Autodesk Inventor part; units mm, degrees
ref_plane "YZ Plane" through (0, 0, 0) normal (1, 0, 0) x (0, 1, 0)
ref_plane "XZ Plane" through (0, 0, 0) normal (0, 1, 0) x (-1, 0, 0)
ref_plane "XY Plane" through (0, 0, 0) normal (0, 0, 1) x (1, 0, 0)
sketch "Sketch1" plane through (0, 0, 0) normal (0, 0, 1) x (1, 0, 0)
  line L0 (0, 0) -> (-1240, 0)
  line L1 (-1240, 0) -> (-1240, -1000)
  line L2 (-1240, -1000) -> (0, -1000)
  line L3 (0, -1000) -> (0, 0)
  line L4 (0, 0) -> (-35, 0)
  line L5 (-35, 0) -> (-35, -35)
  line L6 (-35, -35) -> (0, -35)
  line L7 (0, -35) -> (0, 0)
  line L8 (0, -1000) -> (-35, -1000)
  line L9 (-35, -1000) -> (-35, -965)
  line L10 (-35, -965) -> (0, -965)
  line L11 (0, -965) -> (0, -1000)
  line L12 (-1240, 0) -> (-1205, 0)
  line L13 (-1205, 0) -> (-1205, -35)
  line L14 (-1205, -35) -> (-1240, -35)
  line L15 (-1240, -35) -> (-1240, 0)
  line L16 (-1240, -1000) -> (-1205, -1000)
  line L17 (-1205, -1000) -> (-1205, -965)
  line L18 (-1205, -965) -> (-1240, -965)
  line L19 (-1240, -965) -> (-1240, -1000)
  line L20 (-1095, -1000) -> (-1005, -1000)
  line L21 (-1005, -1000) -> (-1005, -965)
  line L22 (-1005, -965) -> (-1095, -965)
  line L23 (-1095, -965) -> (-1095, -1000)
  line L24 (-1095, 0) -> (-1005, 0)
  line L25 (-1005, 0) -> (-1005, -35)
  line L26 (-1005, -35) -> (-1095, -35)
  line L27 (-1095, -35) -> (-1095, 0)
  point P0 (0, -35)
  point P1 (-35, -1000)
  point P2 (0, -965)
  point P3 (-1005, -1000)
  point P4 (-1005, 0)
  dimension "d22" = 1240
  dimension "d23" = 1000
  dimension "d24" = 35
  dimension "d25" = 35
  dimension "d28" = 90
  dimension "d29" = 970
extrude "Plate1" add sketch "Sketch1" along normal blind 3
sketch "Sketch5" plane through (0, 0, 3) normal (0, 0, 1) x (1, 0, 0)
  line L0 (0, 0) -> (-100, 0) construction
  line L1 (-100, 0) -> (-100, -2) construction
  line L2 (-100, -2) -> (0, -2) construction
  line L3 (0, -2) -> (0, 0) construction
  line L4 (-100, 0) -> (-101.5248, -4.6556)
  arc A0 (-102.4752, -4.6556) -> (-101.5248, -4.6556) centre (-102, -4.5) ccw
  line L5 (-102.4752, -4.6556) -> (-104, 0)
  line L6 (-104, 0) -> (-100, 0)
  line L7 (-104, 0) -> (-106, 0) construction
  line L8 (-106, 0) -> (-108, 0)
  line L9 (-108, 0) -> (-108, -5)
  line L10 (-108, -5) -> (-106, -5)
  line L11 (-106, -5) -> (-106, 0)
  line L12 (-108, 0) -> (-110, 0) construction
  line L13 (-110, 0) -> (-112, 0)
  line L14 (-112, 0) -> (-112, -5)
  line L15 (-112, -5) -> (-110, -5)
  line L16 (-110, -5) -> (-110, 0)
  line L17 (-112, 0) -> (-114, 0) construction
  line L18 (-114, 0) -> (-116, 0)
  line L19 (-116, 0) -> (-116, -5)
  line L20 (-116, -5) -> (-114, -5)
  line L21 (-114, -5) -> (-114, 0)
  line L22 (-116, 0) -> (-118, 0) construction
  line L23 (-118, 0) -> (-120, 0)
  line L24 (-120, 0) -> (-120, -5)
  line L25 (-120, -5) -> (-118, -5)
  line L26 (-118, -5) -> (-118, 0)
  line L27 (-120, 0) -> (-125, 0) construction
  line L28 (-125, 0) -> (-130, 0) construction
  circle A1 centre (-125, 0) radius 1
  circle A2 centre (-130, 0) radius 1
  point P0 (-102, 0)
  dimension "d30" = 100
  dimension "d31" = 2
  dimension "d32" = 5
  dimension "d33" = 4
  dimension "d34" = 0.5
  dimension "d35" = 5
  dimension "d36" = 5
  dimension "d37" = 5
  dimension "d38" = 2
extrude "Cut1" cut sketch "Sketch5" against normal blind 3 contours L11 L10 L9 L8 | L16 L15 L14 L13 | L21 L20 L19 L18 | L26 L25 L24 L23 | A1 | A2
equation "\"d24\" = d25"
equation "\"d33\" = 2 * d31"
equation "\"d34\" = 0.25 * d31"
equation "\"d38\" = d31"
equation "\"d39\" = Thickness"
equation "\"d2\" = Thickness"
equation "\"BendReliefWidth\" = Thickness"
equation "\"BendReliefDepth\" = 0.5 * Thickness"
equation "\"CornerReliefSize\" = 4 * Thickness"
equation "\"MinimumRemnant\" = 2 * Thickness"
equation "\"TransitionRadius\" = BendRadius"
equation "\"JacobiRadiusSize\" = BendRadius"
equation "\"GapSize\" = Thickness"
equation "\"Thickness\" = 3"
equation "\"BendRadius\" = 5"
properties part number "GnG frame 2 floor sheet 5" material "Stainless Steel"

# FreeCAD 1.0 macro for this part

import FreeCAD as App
import Part
import Sketcher
from FreeCAD import Vector
Q = App.Units.Quantity

doc = App.newDocument("Part")
body = doc.addObject("PartDesign::Body", "Body")

# Sketch on XY plane
sketch1 = body.newObject("Sketcher::SketchObject", "Sketch")
sketch1.AttachmentSupport = (doc.getObject("XY_Plane"), [""])
sketch1.MapMode = "FlatFace"
sketch1.addGeometry([
    Part.LineSegment(Vector(0, 0, 0), Vector(-1240, 0, 0)),
    Part.LineSegment(Vector(-1240, 0, 0), Vector(-1240, -1000, 0)),
    Part.LineSegment(Vector(-1240, -1000, 0), Vector(0, -1000, 0)),
    Part.LineSegment(Vector(0, -1000, 0), Vector(0, 0, 0)),
], False)
sketch1.addConstraint([
    Sketcher.Constraint("Coincident", 0, 2, 1, 1),
    Sketcher.Constraint("Coincident", 1, 2, 2, 1),
    Sketcher.Constraint("Coincident", 2, 2, 3, 1),
    Sketcher.Constraint("Coincident", 3, 2, 0, 1),
    Sketcher.Constraint("Horizontal", 0),
    Sketcher.Constraint("Vertical", 1),
    Sketcher.Constraint("Horizontal", 2),
    Sketcher.Constraint("Vertical", 3),
    Sketcher.Constraint("Coincident", 3, 2, -1, 1),
    Sketcher.Constraint("DistanceX", 0, 2, 0, 1, Q("1240 mm")),
    Sketcher.Constraint("DistanceY", 1, 2, 1, 1, Q("1000 mm")),
])
pad1 = body.newObject("PartDesign::Pad", "Pad")
pad1.Profile = sketch1
pad1.Length = 3

# Sketch on XY plane
sketch2 = body.newObject("Sketcher::SketchObject", "Sketch001")
sketch2.AttachmentSupport = (doc.getObject("XY_Plane"), [""])
sketch2.MapMode = "FlatFace"
sketch2.AttachmentOffset = App.Placement(Vector(0, 0, 3), App.Rotation())
sketch2.addGeometry([
    Part.LineSegment(Vector(-106, -5, 0), Vector(-106, 0, 0)),  # 0
    Part.LineSegment(Vector(-106, 0, 0), Vector(-108, 0, 0)),  # 1
    Part.LineSegment(Vector(-108, 0, 0), Vector(-108, -5, 0)),  # 2
    Part.LineSegment(Vector(-108, -5, 0), Vector(-106, -5, 0)),  # 3
    Part.LineSegment(Vector(-110, -5, 0), Vector(-110, 0, 0)),  # 4
    Part.LineSegment(Vector(-110, 0, 0), Vector(-112, 0, 0)),  # 5
    Part.LineSegment(Vector(-112, 0, 0), Vector(-112, -5, 0)),  # 6
    Part.LineSegment(Vector(-112, -5, 0), Vector(-110, -5, 0)),  # 7
    Part.LineSegment(Vector(-114, -5, 0), Vector(-114, 0, 0)),  # 8
    Part.LineSegment(Vector(-114, 0, 0), Vector(-116, 0, 0)),  # 9
    Part.LineSegment(Vector(-116, 0, 0), Vector(-116, -5, 0)),  # 10
    Part.LineSegment(Vector(-116, -5, 0), Vector(-114, -5, 0)),  # 11
    Part.LineSegment(Vector(-118, -5, 0), Vector(-118, 0, 0)),  # 12
    Part.LineSegment(Vector(-118, 0, 0), Vector(-120, 0, 0)),  # 13
    Part.LineSegment(Vector(-120, 0, 0), Vector(-120, -5, 0)),  # 14
    Part.LineSegment(Vector(-120, -5, 0), Vector(-118, -5, 0)),  # 15
    Part.Circle(Vector(-125, 0, 0), Vector(0, 0, 1), 1),  # 16
    Part.Circle(Vector(-130, 0, 0), Vector(0, 0, 1), 1),  # 17
], False)
sketch2.addConstraint([
    Sketcher.Constraint("Coincident", 0, 2, 1, 1),
    Sketcher.Constraint("Coincident", 1, 2, 2, 1),
    Sketcher.Constraint("Coincident", 2, 2, 3, 1),
    Sketcher.Constraint("Coincident", 3, 2, 0, 1),
    Sketcher.Constraint("Coincident", 4, 2, 5, 1),
    Sketcher.Constraint("Coincident", 5, 2, 6, 1),
    Sketcher.Constraint("Coincident", 6, 2, 7, 1),
    Sketcher.Constraint("Coincident", 7, 2, 4, 1),
    Sketcher.Constraint("Coincident", 8, 2, 9, 1),
    Sketcher.Constraint("Coincident", 9, 2, 10, 1),
    Sketcher.Constraint("Coincident", 10, 2, 11, 1),
    Sketcher.Constraint("Coincident", 11, 2, 8, 1),
    Sketcher.Constraint("Coincident", 12, 2, 13, 1),
    Sketcher.Constraint("Coincident", 13, 2, 14, 1),
    Sketcher.Constraint("Coincident", 14, 2, 15, 1),
    Sketcher.Constraint("Coincident", 15, 2, 12, 1),
    Sketcher.Constraint("Vertical", 0),
    Sketcher.Constraint("Horizontal", 1),
    Sketcher.Constraint("Vertical", 2),
    Sketcher.Constraint("Horizontal", 3),
    Sketcher.Constraint("Vertical", 4),
    Sketcher.Constraint("Horizontal", 5),
    Sketcher.Constraint("Vertical", 6),
    Sketcher.Constraint("Horizontal", 7),
    Sketcher.Constraint("Vertical", 8),
    Sketcher.Constraint("Horizontal", 9),
    Sketcher.Constraint("Vertical", 10),
    Sketcher.Constraint("Horizontal", 11),
    Sketcher.Constraint("Vertical", 12),
    Sketcher.Constraint("Horizontal", 13),
    Sketcher.Constraint("Vertical", 14),
    Sketcher.Constraint("Horizontal", 15),
    Sketcher.Constraint("Equal", 16, 17),
    Sketcher.Constraint("PointOnObject", 16, 3, -1),
    Sketcher.Constraint("PointOnObject", 17, 3, -1),
    Sketcher.Constraint("PointOnObject", 0, 2, -1),
    Sketcher.Constraint("PointOnObject", 4, 2, -1),
    Sketcher.Constraint("PointOnObject", 8, 2, -1),
    Sketcher.Constraint("PointOnObject", 12, 2, -1),
    Sketcher.Constraint("Horizontal", 3, 2, 6, 2),
    Sketcher.Constraint("Horizontal", 7, 2, 10, 2),
    Sketcher.Constraint("Horizontal", 11, 2, 14, 2),
    Sketcher.Constraint("Equal", 3, 5),
    Sketcher.Constraint("Equal", 7, 9),
    Sketcher.Constraint("Equal", 11, 13),
    Sketcher.Constraint("Diameter", 16, Q("2 mm")),
    Sketcher.Constraint("DistanceX", 1, 2, 1, 1, Q("2 mm")),
    Sketcher.Constraint("DistanceY", 0, 1, 0, 2, Q("5 mm")),
    Sketcher.Constraint("DistanceX", 17, 3, 16, 3, Q("5 mm")),
    Sketcher.Constraint("DistanceX", 4, 2, 1, 2, Q("2 mm")),
    Sketcher.Constraint("DistanceX", 8, 2, 5, 2, Q("2 mm")),
    Sketcher.Constraint("DistanceX", 12, 2, 9, 2, Q("2 mm")),
    Sketcher.Constraint("DistanceX", 16, 3, 13, 2, Q("5 mm")),
    Sketcher.Constraint("DistanceX", 16, 3, -1, 1, Q("125 mm")),
])
pocket1 = body.newObject("PartDesign::Pocket", "Pocket")
pocket1.Profile = sketch2
pocket1.Length = 3

doc.recompute()
